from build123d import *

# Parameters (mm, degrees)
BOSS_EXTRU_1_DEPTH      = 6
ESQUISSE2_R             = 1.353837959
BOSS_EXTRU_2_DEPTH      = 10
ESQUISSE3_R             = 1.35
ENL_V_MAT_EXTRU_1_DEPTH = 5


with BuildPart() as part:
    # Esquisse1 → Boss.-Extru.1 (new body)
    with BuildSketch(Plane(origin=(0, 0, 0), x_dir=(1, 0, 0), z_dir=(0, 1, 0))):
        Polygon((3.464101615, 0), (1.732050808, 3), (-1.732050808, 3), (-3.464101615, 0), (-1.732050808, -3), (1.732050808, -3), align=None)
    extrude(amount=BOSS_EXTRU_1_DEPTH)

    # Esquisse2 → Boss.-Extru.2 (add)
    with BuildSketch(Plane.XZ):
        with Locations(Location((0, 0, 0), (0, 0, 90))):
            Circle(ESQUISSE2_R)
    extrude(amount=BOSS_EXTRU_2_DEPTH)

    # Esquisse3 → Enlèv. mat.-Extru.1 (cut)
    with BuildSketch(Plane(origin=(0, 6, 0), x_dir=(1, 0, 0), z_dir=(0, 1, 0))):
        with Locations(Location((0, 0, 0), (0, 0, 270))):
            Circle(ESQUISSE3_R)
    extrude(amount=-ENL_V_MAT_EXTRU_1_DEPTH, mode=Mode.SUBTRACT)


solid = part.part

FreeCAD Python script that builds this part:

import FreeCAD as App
import Part
import Sketcher

V = App.Vector
Q = App.Units.Quantity

doc = App.newDocument("Part")
body = doc.addObject("PartDesign::Body", "Body")

# Sketch on XZ plane
sketch1 = body.newObject("Sketcher::SketchObject", "Sketch")
sketch1.AttachmentSupport = (doc.getObject("XZ_Plane"), [""])
sketch1.MapMode = "FlatFace"
sketch1.addGeometry([
    Part.LineSegment(V(3.464102, 0, 0), V(1.732051, -3, 0)),  # 0
    Part.LineSegment(V(1.732051, -3, 0), V(-1.732051, -3, 0)),  # 1
    Part.LineSegment(V(-1.732051, -3, 0), V(-3.464102, 0, 0)),  # 2
    Part.LineSegment(V(-3.464102, 0, 0), V(-1.732051, 3, 0)),  # 3
    Part.LineSegment(V(-1.732051, 3, 0), V(1.732051, 3, 0)),  # 4
    Part.LineSegment(V(1.732051, 3, 0), V(3.464102, 0, 0)),  # 5
], False)
sketch1.addConstraint([
    Sketcher.Constraint("Coincident", 0, 2, 1, 1),
    Sketcher.Constraint("Coincident", 1, 2, 2, 1),
    Sketcher.Constraint("Coincident", 2, 2, 3, 1),
    Sketcher.Constraint("Coincident", 3, 2, 4, 1),
    Sketcher.Constraint("Coincident", 4, 2, 5, 1),
    Sketcher.Constraint("Coincident", 5, 2, 0, 1),
    Sketcher.Constraint("Horizontal", 1),
    Sketcher.Constraint("Horizontal", 4),
    Sketcher.Constraint("Symmetric", 0, 2, 3, 2, -1, 1),
    Sketcher.Constraint("Symmetric", 2, 2, 5, 2, -1, 1),
    Sketcher.Constraint("PointOnObject", 2, 2, -1),
    Sketcher.Constraint("Parallel", 2, 5),
    Sketcher.Constraint("Vertical", 1, 2, 3, 2),
    Sketcher.Constraint("Angle", 0, Q("-120 deg")),
    Sketcher.Constraint("DistanceY", 0, 2, -1, 1, Q("3 mm")),
    Sketcher.Constraint("DistanceX", 1, 2, 1, 1, Q("3.464102 mm")),
])
pad1 = body.newObject("PartDesign::Pad", "Pad")
pad1.Profile = sketch1
pad1.Length = 6
pad1.Reversed = True

# Sketch on XZ plane
sketch2 = body.newObject("Sketcher::SketchObject", "Sketch001")
sketch2.AttachmentSupport = (doc.getObject("XZ_Plane"), [""])
sketch2.MapMode = "FlatFace"
sketch2.addGeometry(Part.Circle(V(0, 0, 0), V(0, 0, 1), 1.353838), False)
sketch2.addConstraint([
    Sketcher.Constraint("Coincident", 0, 3, -1, 1),
    Sketcher.Constraint("Diameter", 0, Q("2.707676 mm")),
])
pad2 = body.newObject("PartDesign::Pad", "Pad001")
pad2.Profile = sketch2
pad2.Length = 10

# Sketch on XZ plane
sketch3 = body.newObject("Sketcher::SketchObject", "Sketch002")
sketch3.AttachmentSupport = (doc.getObject("XZ_Plane"), [""])
sketch3.MapMode = "FlatFace"
sketch3.AttachmentOffset = App.Placement(V(0, 0, -6), App.Rotation())
sketch3.addGeometry(Part.Circle(V(0, 0, 0), V(0, 0, 1), 1.35), False)
sketch3.addConstraint([
    Sketcher.Constraint("Coincident", 0, 3, -1, 1),
    Sketcher.Constraint("Diameter", 0, Q("2.7 mm")),
])
pocket1 = body.newObject("PartDesign::Pocket", "Pocket")
pocket1.Profile = sketch3
pocket1.Length = 5
pocket1.Reversed = True

doc.recompute()
